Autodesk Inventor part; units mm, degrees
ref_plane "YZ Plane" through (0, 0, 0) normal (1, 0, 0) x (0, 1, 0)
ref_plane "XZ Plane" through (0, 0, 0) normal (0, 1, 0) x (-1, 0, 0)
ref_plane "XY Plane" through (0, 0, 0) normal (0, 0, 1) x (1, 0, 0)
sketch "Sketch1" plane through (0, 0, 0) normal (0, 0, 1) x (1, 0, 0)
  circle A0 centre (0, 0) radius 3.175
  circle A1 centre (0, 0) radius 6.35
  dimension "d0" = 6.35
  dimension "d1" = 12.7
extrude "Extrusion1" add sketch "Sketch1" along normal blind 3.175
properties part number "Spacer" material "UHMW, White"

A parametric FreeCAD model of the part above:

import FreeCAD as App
import Part
import Sketcher

V = App.Vector
Q = App.Units.Quantity

doc = App.newDocument("Part")
body = doc.addObject("PartDesign::Body", "Body")

# Sketch on XY plane
sketch1 = body.newObject("Sketcher::SketchObject", "Sketch")
sketch1.AttachmentSupport = (doc.getObject("XY_Plane"), [""])
sketch1.MapMode = "FlatFace"
sketch1.addGeometry([
    Part.Circle(V(0, 0, 0), V(0, 0, 1), 6.3),
    Part.Circle(V(0, 0, 0), V(0, 0, 1), 3.2),
], False)
sketch1.addConstraint([
    Sketcher.Constraint("Coincident", 0, 3, -1, 1),
    Sketcher.Constraint("Coincident", 1, 3, -1, 1),
    Sketcher.Constraint("Diameter", 0, Q("0.5 in")),
    Sketcher.Constraint("Diameter", 1, Q("0.25 in")),
])
pad1 = body.newObject("PartDesign::Pad", "Pad")
pad1.Profile = sketch1
pad1.Length = Q("0.125 in")

doc.recompute()
